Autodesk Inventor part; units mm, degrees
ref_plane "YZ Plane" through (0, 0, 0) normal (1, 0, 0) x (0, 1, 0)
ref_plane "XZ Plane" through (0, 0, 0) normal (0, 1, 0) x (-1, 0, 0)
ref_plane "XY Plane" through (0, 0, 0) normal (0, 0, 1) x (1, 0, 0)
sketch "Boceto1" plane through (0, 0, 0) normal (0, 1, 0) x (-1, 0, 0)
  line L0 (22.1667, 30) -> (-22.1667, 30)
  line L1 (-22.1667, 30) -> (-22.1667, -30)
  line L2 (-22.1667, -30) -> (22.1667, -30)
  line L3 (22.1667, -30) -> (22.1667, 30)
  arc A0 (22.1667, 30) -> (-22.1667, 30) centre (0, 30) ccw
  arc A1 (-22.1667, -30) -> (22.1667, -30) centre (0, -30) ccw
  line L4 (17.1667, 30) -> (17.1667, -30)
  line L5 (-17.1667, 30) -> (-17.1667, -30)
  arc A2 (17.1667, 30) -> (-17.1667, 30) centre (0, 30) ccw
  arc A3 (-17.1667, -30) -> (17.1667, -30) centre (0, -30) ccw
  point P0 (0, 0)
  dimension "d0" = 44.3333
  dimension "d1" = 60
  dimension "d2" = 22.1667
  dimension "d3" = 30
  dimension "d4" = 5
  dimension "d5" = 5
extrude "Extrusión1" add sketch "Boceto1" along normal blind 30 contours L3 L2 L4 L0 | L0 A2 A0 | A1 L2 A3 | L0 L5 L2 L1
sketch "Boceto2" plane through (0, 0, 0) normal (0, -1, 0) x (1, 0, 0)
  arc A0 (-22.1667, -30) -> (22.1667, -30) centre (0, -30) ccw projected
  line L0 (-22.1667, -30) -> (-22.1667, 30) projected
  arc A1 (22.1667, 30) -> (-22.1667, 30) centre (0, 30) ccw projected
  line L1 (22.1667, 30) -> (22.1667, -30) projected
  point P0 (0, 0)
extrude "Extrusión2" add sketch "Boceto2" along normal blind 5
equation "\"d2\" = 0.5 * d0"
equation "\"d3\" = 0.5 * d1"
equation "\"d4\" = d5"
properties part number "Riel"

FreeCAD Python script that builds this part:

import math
import FreeCAD as App
import Part
import Sketcher

V = App.Vector

doc = App.newDocument("Part")
body = doc.addObject("PartDesign::Body", "Body")

# Sketch on XZ plane
sketch1 = doc.addObject("Sketcher::SketchObject", "Sketch")
body.addObject(sketch1)
sketch1.AttachmentSupport = (doc.XZ_Plane, [""])
sketch1.MapMode = "FlatFace"
sketch1.addGeometry(Part.LineSegment(V(-22, -30, 0), V(-22, 30, 0)), False)
sketch1.addGeometry(Part.ArcOfCircle(Part.Circle(V(0, 30, 0), V(0, 0, 1), 22), math.radians(0), math.radians(180)), False)
sketch1.addGeometry(Part.LineSegment(V(22, 30, 0), V(22, -30, 0)), False)
sketch1.addGeometry(Part.ArcOfCircle(Part.Circle(V(0, -30, 0), V(0, 0, 1), 22), math.radians(180), math.radians(360)), False)
sketch1.addGeometry(Part.LineSegment(V(-17, 30, 0), V(-17, -30, 0)), False)
sketch1.addGeometry(Part.ArcOfCircle(Part.Circle(V(0, -30, 0), V(0, 0, 1), 17), math.radians(180), math.radians(360)), False)
sketch1.addGeometry(Part.LineSegment(V(17, -30, 0), V(17, 30, 0)), False)
sketch1.addGeometry(Part.ArcOfCircle(Part.Circle(V(0, 30, 0), V(0, 0, 1), 17), math.radians(0), math.radians(180)), False)
sketch1.addConstraint(Sketcher.Constraint("Tangent", 0, 2, 1, 2))
sketch1.addConstraint(Sketcher.Constraint("Tangent", 1, 1, 2, 1))
sketch1.addConstraint(Sketcher.Constraint("Tangent", 2, 2, 3, 2))
sketch1.addConstraint(Sketcher.Constraint("Tangent", 3, 1, 0, 1))
sketch1.addConstraint(Sketcher.Constraint("Tangent", 4, 2, 5, 1))
sketch1.addConstraint(Sketcher.Constraint("Tangent", 5, 2, 6, 1))
sketch1.addConstraint(Sketcher.Constraint("Tangent", 6, 2, 7, 1))
sketch1.addConstraint(Sketcher.Constraint("Tangent", 7, 2, 4, 1))
sketch1.addConstraint(Sketcher.Constraint("Vertical", 0))
sketch1.addConstraint(Sketcher.Constraint("Vertical", 2))
sketch1.addConstraint(Sketcher.Constraint("Vertical", 4))
sketch1.addConstraint(Sketcher.Constraint("Vertical", 6))
sketch1.addConstraint(Sketcher.Constraint("Coincident", 5, 3, 3, 3))
sketch1.addConstraint(Sketcher.Constraint("Symmetric", 1, 3, 3, 3, -1, 1))
sketch1.addConstraint(Sketcher.Constraint("Horizontal", 7, 3, 0, 2))
sketch1.addConstraint(Sketcher.Constraint("DistanceY", 0, 1, 0, 2, 60.0))
sketch1.addConstraint(Sketcher.Constraint("DistanceX", 3, 1, 4, 2, 5.0))
sketch1.addConstraint(Sketcher.Constraint("Radius", 1, 22.1667))
pad1 = doc.addObject("PartDesign::Pad", "Pad")
body.addObject(pad1)
pad1.Profile = sketch1
pad1.Length = 30
pad1.Reversed = True

# Sketch on XZ plane
sketch2 = doc.addObject("Sketcher::SketchObject", "Sketch001")
body.addObject(sketch2)
sketch2.AttachmentSupport = (doc.XZ_Plane, [""])
sketch2.MapMode = "FlatFace"
sketch2.addGeometry(Part.LineSegment(V(-22, 30, 0), V(-22, -30, 0)), False)
sketch2.addGeometry(Part.ArcOfCircle(Part.Circle(V(0, -30, 0), V(0, 0, 1), 22), math.radians(180), math.radians(360)), False)
sketch2.addGeometry(Part.LineSegment(V(22, -30, 0), V(22, 30, 0)), False)
sketch2.addGeometry(Part.ArcOfCircle(Part.Circle(V(0, 30, 0), V(0, 0, 1), 22), math.radians(0), math.radians(180)), False)
sketch2.addConstraint(Sketcher.Constraint("Tangent", 0, 2, 1, 1))
sketch2.addConstraint(Sketcher.Constraint("Tangent", 1, 2, 2, 1))
sketch2.addConstraint(Sketcher.Constraint("Tangent", 2, 2, 3, 1))
sketch2.addConstraint(Sketcher.Constraint("Tangent", 3, 2, 0, 1))
sketch2.addConstraint(Sketcher.Constraint("Vertical", 0))
sketch2.addConstraint(Sketcher.Constraint("Vertical", 2))
sketch2.addConstraint(Sketcher.Constraint("Symmetric", 1, 3, 3, 3, -1, 1))
sketch2.addConstraint(Sketcher.Constraint("DistanceY", 0, 2, 0, 1, 60.0))
sketch2.addConstraint(Sketcher.Constraint("Radius", 1, 22.1667))
pad2 = doc.addObject("PartDesign::Pad", "Pad001")
body.addObject(pad2)
pad2.Profile = sketch2
pad2.Length = 5

doc.recompute()
